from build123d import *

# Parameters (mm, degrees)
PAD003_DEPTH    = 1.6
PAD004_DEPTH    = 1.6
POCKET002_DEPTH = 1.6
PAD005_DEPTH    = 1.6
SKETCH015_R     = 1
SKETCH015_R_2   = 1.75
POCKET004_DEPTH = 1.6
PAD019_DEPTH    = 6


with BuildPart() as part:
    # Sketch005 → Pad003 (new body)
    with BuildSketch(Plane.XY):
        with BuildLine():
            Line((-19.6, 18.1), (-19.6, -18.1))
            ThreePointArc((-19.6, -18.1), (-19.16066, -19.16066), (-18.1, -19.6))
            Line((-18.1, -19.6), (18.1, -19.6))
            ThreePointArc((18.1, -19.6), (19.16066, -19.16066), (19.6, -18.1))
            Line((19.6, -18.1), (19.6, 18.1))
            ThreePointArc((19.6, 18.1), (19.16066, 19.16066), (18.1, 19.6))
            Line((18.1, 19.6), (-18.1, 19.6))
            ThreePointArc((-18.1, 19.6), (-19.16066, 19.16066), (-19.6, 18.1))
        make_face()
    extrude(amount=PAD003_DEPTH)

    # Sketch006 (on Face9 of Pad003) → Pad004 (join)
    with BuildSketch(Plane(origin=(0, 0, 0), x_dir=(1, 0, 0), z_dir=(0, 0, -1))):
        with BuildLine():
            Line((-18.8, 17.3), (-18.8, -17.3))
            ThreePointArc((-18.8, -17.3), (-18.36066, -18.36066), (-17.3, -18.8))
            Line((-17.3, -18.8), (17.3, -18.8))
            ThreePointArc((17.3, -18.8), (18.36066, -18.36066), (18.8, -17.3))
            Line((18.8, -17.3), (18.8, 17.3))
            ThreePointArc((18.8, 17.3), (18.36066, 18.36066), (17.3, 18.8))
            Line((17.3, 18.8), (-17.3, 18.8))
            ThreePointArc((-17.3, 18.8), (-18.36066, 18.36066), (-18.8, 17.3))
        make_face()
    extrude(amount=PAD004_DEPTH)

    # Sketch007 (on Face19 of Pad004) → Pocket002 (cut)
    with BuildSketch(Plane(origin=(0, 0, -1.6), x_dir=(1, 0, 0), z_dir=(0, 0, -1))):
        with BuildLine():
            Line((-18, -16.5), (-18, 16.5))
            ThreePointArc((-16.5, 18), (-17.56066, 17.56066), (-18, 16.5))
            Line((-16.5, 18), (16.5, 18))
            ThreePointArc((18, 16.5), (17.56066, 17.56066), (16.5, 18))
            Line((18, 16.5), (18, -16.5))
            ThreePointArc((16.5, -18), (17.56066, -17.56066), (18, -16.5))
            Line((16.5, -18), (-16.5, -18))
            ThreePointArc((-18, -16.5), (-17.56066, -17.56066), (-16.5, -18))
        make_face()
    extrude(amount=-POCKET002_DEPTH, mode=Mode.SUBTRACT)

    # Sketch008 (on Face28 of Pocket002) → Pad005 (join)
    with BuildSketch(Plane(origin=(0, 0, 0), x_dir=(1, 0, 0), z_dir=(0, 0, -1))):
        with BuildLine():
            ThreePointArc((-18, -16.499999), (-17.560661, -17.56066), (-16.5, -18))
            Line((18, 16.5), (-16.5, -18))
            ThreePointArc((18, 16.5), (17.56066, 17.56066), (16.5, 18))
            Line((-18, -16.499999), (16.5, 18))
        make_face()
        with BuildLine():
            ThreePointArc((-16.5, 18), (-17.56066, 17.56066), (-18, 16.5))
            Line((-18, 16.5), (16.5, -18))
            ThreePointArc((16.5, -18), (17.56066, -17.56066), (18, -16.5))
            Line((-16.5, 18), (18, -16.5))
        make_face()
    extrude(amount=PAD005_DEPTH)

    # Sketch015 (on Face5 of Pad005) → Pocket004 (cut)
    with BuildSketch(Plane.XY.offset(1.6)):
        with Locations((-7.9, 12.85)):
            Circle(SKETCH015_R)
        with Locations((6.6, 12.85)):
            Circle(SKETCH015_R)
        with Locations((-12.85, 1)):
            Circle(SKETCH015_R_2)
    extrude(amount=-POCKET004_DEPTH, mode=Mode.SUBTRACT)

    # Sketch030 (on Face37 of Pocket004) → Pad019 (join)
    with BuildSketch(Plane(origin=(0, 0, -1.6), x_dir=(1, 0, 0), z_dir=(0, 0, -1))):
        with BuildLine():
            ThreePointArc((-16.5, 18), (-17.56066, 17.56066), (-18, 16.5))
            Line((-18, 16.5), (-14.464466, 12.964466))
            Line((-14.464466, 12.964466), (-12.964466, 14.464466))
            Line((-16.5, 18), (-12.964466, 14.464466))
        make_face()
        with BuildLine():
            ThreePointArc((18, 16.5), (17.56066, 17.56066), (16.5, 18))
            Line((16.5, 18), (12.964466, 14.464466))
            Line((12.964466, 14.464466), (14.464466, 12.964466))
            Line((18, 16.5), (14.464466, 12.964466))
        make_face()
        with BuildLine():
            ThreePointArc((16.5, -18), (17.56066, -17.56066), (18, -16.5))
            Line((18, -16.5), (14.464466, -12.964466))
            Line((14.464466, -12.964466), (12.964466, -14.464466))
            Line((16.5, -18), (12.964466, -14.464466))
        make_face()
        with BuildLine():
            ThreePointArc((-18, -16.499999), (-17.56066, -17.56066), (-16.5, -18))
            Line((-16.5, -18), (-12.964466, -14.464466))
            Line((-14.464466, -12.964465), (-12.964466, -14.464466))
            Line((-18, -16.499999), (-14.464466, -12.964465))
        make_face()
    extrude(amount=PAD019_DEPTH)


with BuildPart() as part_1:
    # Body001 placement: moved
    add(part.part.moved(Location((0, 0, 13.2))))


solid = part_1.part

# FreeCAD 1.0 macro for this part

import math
import FreeCAD as App
import Part
import Sketcher

doc = App.newDocument("Part")
body = doc.addObject("PartDesign::Body", "Body")

# Sketch on XY plane
sketch1 = doc.addObject("Sketcher::SketchObject", "Sketch")
body.addObject(sketch1)
sketch1.AttachmentSupport = (doc.XY_Plane, [""])
sketch1.MapMode = "FlatFace"
sketch1.addGeometry([
    Part.LineSegment(App.Vector(-19.6, 18.1, 0), App.Vector(-19.6, -18.1, 0)),  # 0
    Part.ArcOfCircle(Part.Circle(App.Vector(-18.099999, -18.099999, 0), App.Vector(0, 0, 1), 1.500001), math.radians(-179.999978), math.radians(-90.000022)),  # 1
    Part.LineSegment(App.Vector(-18.1, -19.6, 0), App.Vector(18.1, -19.6, 0)),  # 2
    Part.ArcOfCircle(Part.Circle(App.Vector(18.099999, -18.099999, 0), App.Vector(0, 0, 1), 1.500001), math.radians(-89.999978), math.radians(-0.000022)),  # 3
    Part.LineSegment(App.Vector(19.6, -18.1, 0), App.Vector(19.6, 18.1, 0)),  # 4
    Part.ArcOfCircle(Part.Circle(App.Vector(18.099999, 18.099999, 0), App.Vector(0, 0, 1), 1.500001), math.radians(0.000022), math.radians(89.999978)),  # 5
    Part.LineSegment(App.Vector(18.1, 19.6, 0), App.Vector(-18.1, 19.6, 0)),  # 6
    Part.ArcOfCircle(Part.Circle(App.Vector(-18.099999, 18.099999, 0), App.Vector(0, 0, 1), 1.500001), math.radians(90.000022), math.radians(179.999978)),  # 7
], False)
sketch1.addConstraint([
    Sketcher.Constraint("Tangent", 0, 2, 1, 1),
    Sketcher.Constraint("Tangent", 1, 2, 2, 1),
    Sketcher.Constraint("Tangent", 2, 2, 3, 1),
    Sketcher.Constraint("Tangent", 3, 2, 4, 1),
    Sketcher.Constraint("Tangent", 4, 2, 5, 1),
    Sketcher.Constraint("Tangent", 5, 2, 6, 1),
    Sketcher.Constraint("Tangent", 6, 2, 7, 1),
    Sketcher.Constraint("Tangent", 7, 2, 0, 1),
    Sketcher.Constraint("Vertical", 0),
    Sketcher.Constraint("Horizontal", 2),
    Sketcher.Constraint("Vertical", 4),
    Sketcher.Constraint("Horizontal", 6),
    Sketcher.Constraint("Equal", 1, 3),
    Sketcher.Constraint("Equal", 3, 5),
    Sketcher.Constraint("Equal", 5, 7),
    Sketcher.Constraint("Symmetric", 1, 3, 5, 3, -1, 1),
    Sketcher.Constraint("Equal", 6, 0),
    Sketcher.Constraint("Radius", 1, 1.500001),
    Sketcher.Constraint("DistanceX", 2, 1, 2, 2, 36.2),
])
pad1 = doc.addObject("PartDesign::Pad", "Pad")
body.addObject(pad1)
pad1.Profile = sketch1
pad1.Length = 1.6

# Sketch on XY plane
sketch2 = doc.addObject("Sketcher::SketchObject", "Sketch001")
body.addObject(sketch2)
sketch2.AttachmentSupport = (doc.XY_Plane, [""])
sketch2.MapMode = "FlatFace"
sketch2.addGeometry([
    Part.LineSegment(App.Vector(-18.8, -17.3, 0), App.Vector(-18.8, 17.3, 0)),  # 0
    Part.ArcOfCircle(Part.Circle(App.Vector(-17.299999, 17.299999, 0), App.Vector(0, 0, 1), 1.500001), math.radians(90.000022), math.radians(179.999978)),  # 1
    Part.LineSegment(App.Vector(-17.3, 18.8, 0), App.Vector(17.3, 18.8, 0)),  # 2
    Part.ArcOfCircle(Part.Circle(App.Vector(17.299999, 17.299999, 0), App.Vector(0, 0, 1), 1.500001), math.radians(0.000022), math.radians(89.999978)),  # 3
    Part.LineSegment(App.Vector(18.8, 17.3, 0), App.Vector(18.8, -17.3, 0)),  # 4
    Part.ArcOfCircle(Part.Circle(App.Vector(17.299999, -17.299999, 0), App.Vector(0, 0, 1), 1.500001), math.radians(-89.999978), math.radians(-0.000022)),  # 5
    Part.LineSegment(App.Vector(17.3, -18.8, 0), App.Vector(-17.3, -18.8, 0)),  # 6
    Part.ArcOfCircle(Part.Circle(App.Vector(-17.299999, -17.299999, 0), App.Vector(0, 0, 1), 1.500001), math.radians(-179.999978), math.radians(-90.000022)),  # 7
], False)
sketch2.addConstraint([
    Sketcher.Constraint("Tangent", 0, 2, 1, 2),
    Sketcher.Constraint("Tangent", 1, 1, 2, 1),
    Sketcher.Constraint("Tangent", 2, 2, 3, 2),
    Sketcher.Constraint("Tangent", 3, 1, 4, 1),
    Sketcher.Constraint("Tangent", 4, 2, 5, 2),
    Sketcher.Constraint("Tangent", 5, 1, 6, 1),
    Sketcher.Constraint("Tangent", 6, 2, 7, 2),
    Sketcher.Constraint("Tangent", 7, 1, 0, 1),
    Sketcher.Constraint("Vertical", 0),
    Sketcher.Constraint("Horizontal", 2),
    Sketcher.Constraint("Vertical", 4),
    Sketcher.Constraint("Horizontal", 6),
    Sketcher.Constraint("Equal", 1, 3),
    Sketcher.Constraint("Equal", 3, 5),
    Sketcher.Constraint("Equal", 5, 7),
    Sketcher.Constraint("Symmetric", 1, 3, 5, 3, -1, 1),
    Sketcher.Constraint("Equal", 6, 0),
    Sketcher.Constraint("Radius", 1, 1.500001),
    Sketcher.Constraint("DistanceX", 2, 1, 2, 2, 34.6),
])
pad2 = doc.addObject("PartDesign::Pad", "Pad001")
body.addObject(pad2)
pad2.Profile = sketch2
pad2.Length = 1.6
pad2.Reversed = True

# Sketch on XY plane
sketch3 = doc.addObject("Sketcher::SketchObject", "Sketch002")
body.addObject(sketch3)
sketch3.AttachmentSupport = (doc.XY_Plane, [""])
sketch3.MapMode = "FlatFace"
sketch3.AttachmentOffset = App.Placement(App.Vector(0, 0, -1.6), App.Rotation())
sketch3.addGeometry([
    Part.LineSegment(App.Vector(-18, -16.5, 0), App.Vector(-18, 16.5, 0)),  # 0
    Part.ArcOfCircle(Part.Circle(App.Vector(-16.499999, 16.499999, 0), App.Vector(0, 0, 1), 1.500001), math.radians(90.000022), math.radians(179.999978)),  # 1
    Part.LineSegment(App.Vector(-16.5, 18, 0), App.Vector(16.5, 18, 0)),  # 2
    Part.ArcOfCircle(Part.Circle(App.Vector(16.499999, 16.499999, 0), App.Vector(0, 0, 1), 1.500001), math.radians(0.000022), math.radians(89.999978)),  # 3
    Part.LineSegment(App.Vector(18, 16.5, 0), App.Vector(18, -16.5, 0)),  # 4
    Part.ArcOfCircle(Part.Circle(App.Vector(16.499999, -16.499999, 0), App.Vector(0, 0, 1), 1.500001), math.radians(-89.999978), math.radians(-0.000022)),  # 5
    Part.LineSegment(App.Vector(16.5, -18, 0), App.Vector(-16.5, -18, 0)),  # 6
    Part.ArcOfCircle(Part.Circle(App.Vector(-16.499999, -16.499999, 0), App.Vector(0, 0, 1), 1.500001), math.radians(-179.999978), math.radians(-90.000022)),  # 7
], False)
sketch3.addConstraint([
    Sketcher.Constraint("Tangent", 0, 2, 1, 2),
    Sketcher.Constraint("Tangent", 1, 1, 2, 1),
    Sketcher.Constraint("Tangent", 2, 2, 3, 2),
    Sketcher.Constraint("Tangent", 3, 1, 4, 1),
    Sketcher.Constraint("Tangent", 4, 2, 5, 2),
    Sketcher.Constraint("Tangent", 5, 1, 6, 1),
    Sketcher.Constraint("Tangent", 6, 2, 7, 2),
    Sketcher.Constraint("Tangent", 7, 1, 0, 1),
    Sketcher.Constraint("Vertical", 0),
    Sketcher.Constraint("Horizontal", 2),
    Sketcher.Constraint("Vertical", 4),
    Sketcher.Constraint("Horizontal", 6),
    Sketcher.Constraint("Equal", 1, 3),
    Sketcher.Constraint("Equal", 3, 5),
    Sketcher.Constraint("Equal", 5, 7),
    Sketcher.Constraint("Symmetric", 1, 3, 5, 3, -1, 1),
    Sketcher.Constraint("Equal", 6, 0),
    Sketcher.Constraint("Radius", 1, 1.500001),
    Sketcher.Constraint("DistanceX", 2, 1, 2, 2, 33.0),
])
pocket1 = doc.addObject("PartDesign::Pocket", "Pocket")
body.addObject(pocket1)
pocket1.Profile = sketch3
pocket1.Length = 1.6
pocket1.Reversed = True

# Sketch on XY plane
sketch4 = doc.addObject("Sketcher::SketchObject", "Sketch003")
body.addObject(sketch4)
sketch4.AttachmentSupport = (doc.XY_Plane, [""])
sketch4.MapMode = "FlatFace"
sketch4.addGeometry([
    Part.LineSegment(App.Vector(-1.5, 0, 0), App.Vector(-18, 16.499999, 0)),  # 0
    Part.ArcOfCircle(Part.Circle(App.Vector(-16.500001, 16.500001, 0), App.Vector(0, 0, 1), 1.499999), math.radians(89.999957), math.radians(180.000081)),  # 1
    Part.LineSegment(App.Vector(-16.5, 18, 0), App.Vector(0, 1.5, 0)),  # 2
    Part.LineSegment(App.Vector(0, 1.5, 0), App.Vector(16.5, 18, 0)),  # 3
    Part.ArcOfCircle(Part.Circle(App.Vector(16.499999, 16.499999, 0), App.Vector(0, 0, 1), 1.500001), math.radians(0.000022), math.radians(89.999978)),  # 4
    Part.LineSegment(App.Vector(18, 16.5, 0), App.Vector(1.5, 0, 0)),  # 5
    Part.LineSegment(App.Vector(1.5, 0, 0), App.Vector(18, -16.5, 0)),  # 6
    Part.ArcOfCircle(Part.Circle(App.Vector(16.499999, -16.499999, 0), App.Vector(0, 0, 1), 1.500001), math.radians(-89.999978), math.radians(-0.000022)),  # 7
    Part.LineSegment(App.Vector(16.5, -18, 0), App.Vector(0, -1.5, 0)),  # 8
    Part.LineSegment(App.Vector(0, -1.5, 0), App.Vector(-16.5, -18, 0)),  # 9
    Part.ArcOfCircle(Part.Circle(App.Vector(-16.499999, -16.499999, 0), App.Vector(0, 0, 1), 1.500001), math.radians(-179.999978), math.radians(-90.000022)),  # 10
    Part.LineSegment(App.Vector(-18, -16.5, 0), App.Vector(-1.5, 0, 0)),  # 11
], False)
sketch4.addConstraint([
    Sketcher.Constraint("Coincident", 0, 2, 1, 2),
    Sketcher.Constraint("Coincident", 1, 1, 2, 1),
    Sketcher.Constraint("Coincident", 2, 2, 3, 1),
    Sketcher.Constraint("Coincident", 3, 2, 4, 2),
    Sketcher.Constraint("Coincident", 4, 1, 5, 1),
    Sketcher.Constraint("Coincident", 5, 2, 6, 1),
    Sketcher.Constraint("Coincident", 6, 2, 7, 2),
    Sketcher.Constraint("Coincident", 7, 1, 8, 1),
    Sketcher.Constraint("Coincident", 8, 2, 9, 1),
    Sketcher.Constraint("Coincident", 9, 2, 10, 2),
    Sketcher.Constraint("Coincident", 10, 1, 11, 1),
    Sketcher.Constraint("Coincident", 11, 2, 0, 1),
    Sketcher.Constraint("Equal", 1, 4),
    Sketcher.Constraint("Equal", 4, 7),
    Sketcher.Constraint("Equal", 7, 10),
    Sketcher.Constraint("Symmetric", 1, 3, 7, 3, -1, 1),
    Sketcher.Constraint("Symmetric", 4, 3, 10, 3, -1, 1),
    Sketcher.Constraint("Symmetric", 2, 2, 8, 2, -1, 1),
    Sketcher.Constraint("Symmetric", 5, 2, 11, 2, -1, 1),
    Sketcher.Constraint("Symmetric", 1, 3, 4, 3, -2),
    Sketcher.Constraint("PointOnObject", 2, 2, -2),
    Sketcher.Constraint("PointOnObject", 5, 2, -1),
    Sketcher.Constraint("Parallel", 0, 2),
    Sketcher.Constraint("Perpendicular", 2, 3),
    Sketcher.Constraint("Parallel", 3, 5),
    Sketcher.Constraint("Perpendicular", 5, 6),
    Sketcher.Constraint("Parallel", 6, 8),
    Sketcher.Constraint("Perpendicular", 8, 9),
    Sketcher.Constraint("Parallel", 9, 11),
    Sketcher.Constraint("Horizontal", 4, 3, 0, 2),
    Sketcher.Constraint("Horizontal", 0, 2, 4, 1),
    Sketcher.Constraint("Vertical", 10, 3, 1, 1),
    Sketcher.Constraint("Equal", 0, 2),
    Sketcher.Constraint("Radius", 1, 1.499999),
    Sketcher.Constraint("DistanceX", 0, 2, -1, 1, 18.0),
])
pad3 = doc.addObject("PartDesign::Pad", "Pad002")
body.addObject(pad3)
pad3.Profile = sketch4
pad3.Length = 1.6
pad3.Reversed = True

# Sketch on XY plane
sketch5 = doc.addObject("Sketcher::SketchObject", "Sketch004")
body.addObject(sketch5)
sketch5.AttachmentSupport = (doc.XY_Plane, [""])
sketch5.MapMode = "FlatFace"
sketch5.AttachmentOffset = App.Placement(App.Vector(0, 0, 1.6), App.Rotation())
sketch5.addGeometry([
    Part.Circle(App.Vector(-7.9, 12.85, 0), App.Vector(0, 0, 1), 1),
    Part.Circle(App.Vector(6.6, 12.85, 0), App.Vector(0, 0, 1), 1),
    Part.Circle(App.Vector(-12.85, 1, 0), App.Vector(0, 0, 1), 1.75),
], False)
sketch5.addConstraint([
    Sketcher.Constraint("Equal", 0, 1),
    Sketcher.Constraint("Horizontal", 0, 3, 1, 3),
    Sketcher.Constraint("Diameter", 0, 2.0),
    Sketcher.Constraint("Diameter", 2, 3.5),
    Sketcher.Constraint("DistanceY", -1, 1, 2, 3, 1.0),
    Sketcher.Constraint("DistanceX", 0, 3, -1, 1, 7.9),
    Sketcher.Constraint("DistanceX", -1, 1, 1, 3, 6.6),
    Sketcher.Constraint("DistanceY", -1, 1, 0, 3, 12.85),
    Sketcher.Constraint("DistanceX", 2, 3, -1, 1, 12.85),
])
pocket2 = doc.addObject("PartDesign::Pocket", "Pocket001")
body.addObject(pocket2)
pocket2.Profile = sketch5
pocket2.Length = 1.6

# Sketch on XY plane
sketch6 = doc.addObject("Sketcher::SketchObject", "Sketch005")
body.addObject(sketch6)
sketch6.AttachmentSupport = (doc.XY_Plane, [""])
sketch6.MapMode = "FlatFace"
sketch6.AttachmentOffset = App.Placement(App.Vector(0, 0, -1.6), App.Rotation())
sketch6.addGeometry([
    Part.ArcOfCircle(Part.Circle(App.Vector(-16.499999, -16.499999, 0), App.Vector(0, 0, 1), 1.500001), math.radians(-179.999978), math.radians(-90.000022)),  # 0
    Part.LineSegment(App.Vector(-18, -16.5, 0), App.Vector(-14.464466, -12.964466, 0)),  # 1
    Part.LineSegment(App.Vector(-14.464466, -12.964466, 0), App.Vector(-12.964466, -14.464466, 0)),  # 2
    Part.LineSegment(App.Vector(-12.964466, -14.464466, 0), App.Vector(-16.5, -18, 0)),  # 3
    Part.ArcOfCircle(Part.Circle(App.Vector(16.499999, -16.499999, 0), App.Vector(0, 0, 1), 1.500001), math.radians(-89.999978), math.radians(-0.000022)),  # 4
    Part.LineSegment(App.Vector(16.5, -18, 0), App.Vector(12.964466, -14.464466, 0)),  # 5
    Part.LineSegment(App.Vector(12.964466, -14.464466, 0), App.Vector(14.464466, -12.964466, 0)),  # 6
    Part.LineSegment(App.Vector(14.464466, -12.964466, 0), App.Vector(18, -16.5, 0)),  # 7
    Part.ArcOfCircle(Part.Circle(App.Vector(16.499999, 16.499999, 0), App.Vector(0, 0, 1), 1.500001), math.radians(0.000022), math.radians(89.999978)),  # 8
    Part.LineSegment(App.Vector(18, 16.5, 0), App.Vector(14.464466, 12.964466, 0)),  # 9
    Part.LineSegment(App.Vector(14.464466, 12.964466, 0), App.Vector(12.964466, 14.464466, 0)),  # 10
    Part.LineSegment(App.Vector(12.964466, 14.464466, 0), App.Vector(16.5, 18, 0)),  # 11
    Part.ArcOfCircle(Part.Circle(App.Vector(-16.499999, 16.499999, 0), App.Vector(0, 0, 1), 1.500001), math.radians(90.000022), math.radians(180.000016)),  # 12
    Part.LineSegment(App.Vector(-16.5, 18, 0), App.Vector(-12.964466, 14.464466, 0)),  # 13
    Part.LineSegment(App.Vector(-12.964466, 14.464466, 0), App.Vector(-14.464466, 12.964465, 0)),  # 14
    Part.LineSegment(App.Vector(-14.464466, 12.964465, 0), App.Vector(-18, 16.499999, 0)),  # 15
], False)
sketch6.addConstraint([
    Sketcher.Constraint("Coincident", 0, 1, 1, 1),
    Sketcher.Constraint("Coincident", 1, 2, 2, 1),
    Sketcher.Constraint("Coincident", 2, 2, 3, 1),
    Sketcher.Constraint("Coincident", 3, 2, 0, 2),
    Sketcher.Constraint("Coincident", 4, 1, 5, 1),
    Sketcher.Constraint("Coincident", 5, 2, 6, 1),
    Sketcher.Constraint("Coincident", 6, 2, 7, 1),
    Sketcher.Constraint("Coincident", 7, 2, 4, 2),
    Sketcher.Constraint("Coincident", 8, 1, 9, 1),
    Sketcher.Constraint("Coincident", 9, 2, 10, 1),
    Sketcher.Constraint("Coincident", 10, 2, 11, 1),
    Sketcher.Constraint("Coincident", 11, 2, 8, 2),
    Sketcher.Constraint("Coincident", 12, 1, 13, 1),
    Sketcher.Constraint("Coincident", 13, 2, 14, 1),
    Sketcher.Constraint("Coincident", 14, 2, 15, 1),
    Sketcher.Constraint("Coincident", 15, 2, 12, 2),
    Sketcher.Constraint("Equal", 0, 4),
    Sketcher.Constraint("Equal", 4, 8),
    Sketcher.Constraint("Equal", 8, 12),
    Sketcher.Constraint("Symmetric", 0, 3, 8, 3, -1, 1),
    Sketcher.Constraint("Symmetric", 4, 3, 12, 3, -1, 1),
    Sketcher.Constraint("Symmetric", 1, 2, 9, 2, -1, 1),
    Sketcher.Constraint("Symmetric", 2, 2, 10, 2, -1, 1),
    Sketcher.Constraint("Symmetric", 5, 2, 13, 2, -1, 1),
    Sketcher.Constraint("Symmetric", 6, 2, 14, 2, -1, 1),
    Sketcher.Constraint("Symmetric", 0, 3, 4, 3, -2),
    Sketcher.Constraint("Symmetric", 2, 2, 5, 2, -2),
    Sketcher.Constraint("Symmetric", 1, 2, 6, 2, -2),
    Sketcher.Constraint("Perpendicular", 1, 2),
    Sketcher.Constraint("Perpendicular", 2, 3),
    Sketcher.Constraint("Perpendicular", 3, 5),
    Sketcher.Constraint("Perpendicular", 5, 6),
    Sketcher.Constraint("Perpendicular", 6, 7),
    Sketcher.Constraint("Perpendicular", 7, 9),
    Sketcher.Constraint("Perpendicular", 10, 11),
    Sketcher.Constraint("Perpendicular", 11, 13),
    Sketcher.Constraint("Perpendicular", 14, 15),
    Sketcher.Constraint("Horizontal", 4, 3, 0, 1),
    Sketcher.Constraint("Vertical", 12, 3, 3, 2),
    Sketcher.Constraint("Radius", 0, 1.500001),
    Sketcher.Constraint("Distance", 1, 5.0),
    Sketcher.Constraint("DistanceX", 0, 1, -1, 1, 18.0),
    Sketcher.Constraint("DistanceY", 3, 2, -1, 1, 18.0),
])
pad4 = doc.addObject("PartDesign::Pad", "Pad003")
body.addObject(pad4)
pad4.Profile = sketch6
pad4.Length = 6
pad4.Reversed = True
body2 = doc.addObject("PartDesign::Body", "Body001")
doc.recompute()

body.Placement = App.Placement(App.Vector(0, 0, 13.2), App.Rotation(App.Vector(0, 0, 1), 0))
boolean = doc.addObject("PartDesign::Boolean", "Boolean")
body2.addObject(boolean)
boolean.Type = "Fuse"
boolean.addObjects([body])

doc.recompute()
